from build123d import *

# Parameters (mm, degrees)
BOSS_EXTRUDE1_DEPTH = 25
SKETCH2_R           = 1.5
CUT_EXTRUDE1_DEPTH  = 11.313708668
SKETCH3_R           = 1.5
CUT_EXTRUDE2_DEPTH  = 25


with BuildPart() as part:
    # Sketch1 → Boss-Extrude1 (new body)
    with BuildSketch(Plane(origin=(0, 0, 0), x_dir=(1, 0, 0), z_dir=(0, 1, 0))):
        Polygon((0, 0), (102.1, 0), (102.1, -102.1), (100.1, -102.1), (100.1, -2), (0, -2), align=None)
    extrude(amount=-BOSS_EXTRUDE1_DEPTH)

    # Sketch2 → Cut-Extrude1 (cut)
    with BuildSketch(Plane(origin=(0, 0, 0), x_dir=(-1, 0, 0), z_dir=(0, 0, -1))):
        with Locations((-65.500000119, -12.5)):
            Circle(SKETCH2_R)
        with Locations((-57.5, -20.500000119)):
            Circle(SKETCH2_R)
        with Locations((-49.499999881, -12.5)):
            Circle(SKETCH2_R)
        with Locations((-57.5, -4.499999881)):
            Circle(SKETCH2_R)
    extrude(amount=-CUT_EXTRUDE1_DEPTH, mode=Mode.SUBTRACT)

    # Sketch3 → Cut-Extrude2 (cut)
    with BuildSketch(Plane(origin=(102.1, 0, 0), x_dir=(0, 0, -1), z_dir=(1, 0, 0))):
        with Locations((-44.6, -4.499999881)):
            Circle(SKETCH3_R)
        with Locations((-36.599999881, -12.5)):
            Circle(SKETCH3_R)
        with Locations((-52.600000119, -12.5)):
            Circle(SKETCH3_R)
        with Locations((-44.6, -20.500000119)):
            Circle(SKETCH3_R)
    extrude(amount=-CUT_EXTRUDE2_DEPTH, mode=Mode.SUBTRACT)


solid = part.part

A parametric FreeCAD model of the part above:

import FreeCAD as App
import Part
import Sketcher
from FreeCAD import Vector
Q = App.Units.Quantity

doc = App.newDocument("Part")
body = doc.addObject("PartDesign::Body", "Body")

# Sketch on XZ plane
sketch1 = body.newObject("Sketcher::SketchObject", "Sketch")
sketch1.AttachmentSupport = (doc.getObject("XZ_Plane"), [""])
sketch1.MapMode = "FlatFace"
sketch1.addGeometry(Part.LineSegment(Vector(102.1, 0, 0), Vector(0, 0, 0)), False)
sketch1.addGeometry(Part.LineSegment(Vector(0, 0, 0), Vector(0, 2, 0)), False)
sketch1.addGeometry(Part.LineSegment(Vector(0, 2, 0), Vector(100.1, 2, 0)), False)
sketch1.addGeometry(Part.LineSegment(Vector(100.1, 2, 0), Vector(100.1, 102.1, 0)), False)
sketch1.addGeometry(Part.LineSegment(Vector(100.1, 102.1, 0), Vector(102.1, 102.1, 0)), False)
sketch1.addGeometry(Part.LineSegment(Vector(102.1, 102.1, 0), Vector(102.1, 0, 0)), False)
sketch1.addConstraint(Sketcher.Constraint("Coincident", 0, 2, 1, 1))
sketch1.addConstraint(Sketcher.Constraint("Coincident", 1, 2, 2, 1))
sketch1.addConstraint(Sketcher.Constraint("Coincident", 2, 2, 3, 1))
sketch1.addConstraint(Sketcher.Constraint("Coincident", 3, 2, 4, 1))
sketch1.addConstraint(Sketcher.Constraint("Coincident", 4, 2, 5, 1))
sketch1.addConstraint(Sketcher.Constraint("Coincident", 5, 2, 0, 1))
sketch1.addConstraint(Sketcher.Constraint("Horizontal", 0))
sketch1.addConstraint(Sketcher.Constraint("Vertical", 1))
sketch1.addConstraint(Sketcher.Constraint("Horizontal", 2))
sketch1.addConstraint(Sketcher.Constraint("Vertical", 3))
sketch1.addConstraint(Sketcher.Constraint("Horizontal", 4))
sketch1.addConstraint(Sketcher.Constraint("Vertical", 5))
sketch1.addConstraint(Sketcher.Constraint("Coincident", 0, 2, -1, 1))
sketch1.addConstraint(Sketcher.Constraint("Equal", 4, 1))
sketch1.addConstraint(Sketcher.Constraint("Equal", 2, 3))
sketch1.addConstraint(Sketcher.Constraint("DistanceX", 4, 1, 4, 2, Q("2 mm")))
sketch1.addConstraint(Sketcher.Constraint("DistanceX", 0, 2, 0, 1, Q("102.1 mm")))
pad1 = body.newObject("PartDesign::Pad", "Pad")
pad1.Profile = sketch1
pad1.Length = 25

# Sketch on XY plane
sketch2 = body.newObject("Sketcher::SketchObject", "Sketch001")
sketch2.AttachmentSupport = (doc.getObject("XY_Plane"), [""])
sketch2.MapMode = "FlatFace"
sketch2.addGeometry(Part.Circle(Vector(65.5, -12.5, 0), Vector(0, 0, 1), 1.5), False)
sketch2.addGeometry(Part.Circle(Vector(57.5, -20.5, 0), Vector(0, 0, 1), 1.5), False)
sketch2.addGeometry(Part.Circle(Vector(49.5, -12.5, 0), Vector(0, 0, 1), 1.5), False)
sketch2.addGeometry(Part.Circle(Vector(57.5, -4.5, 0), Vector(0, 0, 1), 1.5), False)
sketch2.addConstraint(Sketcher.Constraint("Equal", 0, 1))
sketch2.addConstraint(Sketcher.Constraint("Equal", 1, 2))
sketch2.addConstraint(Sketcher.Constraint("Equal", 2, 3))
sketch2.addConstraint(Sketcher.Constraint("Horizontal", 0, 3, 2, 3))
sketch2.addConstraint(Sketcher.Constraint("Vertical", 1, 3, 3, 3))
sketch2.addConstraint(Sketcher.Constraint("Diameter", 0, Q("3 mm")))
sketch2.addConstraint(Sketcher.Constraint("DistanceX", 1, 3, 0, 3, Q("8 mm")))
sketch2.addConstraint(Sketcher.Constraint("DistanceY", 1, 3, 0, 3, Q("8 mm")))
sketch2.addConstraint(Sketcher.Constraint("DistanceX", 2, 3, 1, 3, Q("8 mm")))
sketch2.addConstraint(Sketcher.Constraint("DistanceY", 2, 3, 3, 3, Q("8 mm")))
sketch2.addConstraint(Sketcher.Constraint("DistanceX", -1, 1, 0, 3, Q("65.5 mm")))
sketch2.addConstraint(Sketcher.Constraint("DistanceY", 0, 3, -1, 1, Q("12.5 mm")))
pocket1 = body.newObject("PartDesign::Pocket", "Pocket")
pocket1.Profile = sketch2
pocket1.Length = 11.313709
pocket1.Reversed = True

# Sketch on YZ plane
sketch3 = body.newObject("Sketcher::SketchObject", "Sketch002")
sketch3.AttachmentSupport = (doc.getObject("YZ_Plane"), [""])
sketch3.MapMode = "FlatFace"
sketch3.AttachmentOffset = App.Placement(Vector(0, 0, 102.1), App.Rotation())
sketch3.addGeometry(Part.Circle(Vector(-4.5, 44.6, 0), Vector(0, 0, 1), 1.5), False)
sketch3.addGeometry(Part.Circle(Vector(-12.5, 36.6, 0), Vector(0, 0, 1), 1.5), False)
sketch3.addGeometry(Part.Circle(Vector(-12.5, 52.6, 0), Vector(0, 0, 1), 1.5), False)
sketch3.addGeometry(Part.Circle(Vector(-20.5, 44.6, 0), Vector(0, 0, 1), 1.5), False)
sketch3.addConstraint(Sketcher.Constraint("Equal", 0, 1))
sketch3.addConstraint(Sketcher.Constraint("Equal", 1, 2))
sketch3.addConstraint(Sketcher.Constraint("Equal", 2, 3))
sketch3.addConstraint(Sketcher.Constraint("Horizontal", 0, 3, 3, 3))
sketch3.addConstraint(Sketcher.Constraint("Vertical", 1, 3, 2, 3))
sketch3.addConstraint(Sketcher.Constraint("Diameter", 0, Q("3 mm")))
sketch3.addConstraint(Sketcher.Constraint("DistanceX", 1, 3, 0, 3, Q("8 mm")))
sketch3.addConstraint(Sketcher.Constraint("DistanceY", 1, 3, 0, 3, Q("8 mm")))
sketch3.addConstraint(Sketcher.Constraint("DistanceY", 0, 3, 2, 3, Q("8 mm")))
sketch3.addConstraint(Sketcher.Constraint("DistanceX", 3, 3, 1, 3, Q("8 mm")))
sketch3.addConstraint(Sketcher.Constraint("DistanceX", 0, 3, -1, 1, Q("4.5 mm")))
sketch3.addConstraint(Sketcher.Constraint("DistanceY", -1, 1, 0, 3, Q("44.6 mm")))
pocket2 = body.newObject("PartDesign::Pocket", "Pocket001")
pocket2.Profile = sketch3
pocket2.Length = 25

doc.recompute()
